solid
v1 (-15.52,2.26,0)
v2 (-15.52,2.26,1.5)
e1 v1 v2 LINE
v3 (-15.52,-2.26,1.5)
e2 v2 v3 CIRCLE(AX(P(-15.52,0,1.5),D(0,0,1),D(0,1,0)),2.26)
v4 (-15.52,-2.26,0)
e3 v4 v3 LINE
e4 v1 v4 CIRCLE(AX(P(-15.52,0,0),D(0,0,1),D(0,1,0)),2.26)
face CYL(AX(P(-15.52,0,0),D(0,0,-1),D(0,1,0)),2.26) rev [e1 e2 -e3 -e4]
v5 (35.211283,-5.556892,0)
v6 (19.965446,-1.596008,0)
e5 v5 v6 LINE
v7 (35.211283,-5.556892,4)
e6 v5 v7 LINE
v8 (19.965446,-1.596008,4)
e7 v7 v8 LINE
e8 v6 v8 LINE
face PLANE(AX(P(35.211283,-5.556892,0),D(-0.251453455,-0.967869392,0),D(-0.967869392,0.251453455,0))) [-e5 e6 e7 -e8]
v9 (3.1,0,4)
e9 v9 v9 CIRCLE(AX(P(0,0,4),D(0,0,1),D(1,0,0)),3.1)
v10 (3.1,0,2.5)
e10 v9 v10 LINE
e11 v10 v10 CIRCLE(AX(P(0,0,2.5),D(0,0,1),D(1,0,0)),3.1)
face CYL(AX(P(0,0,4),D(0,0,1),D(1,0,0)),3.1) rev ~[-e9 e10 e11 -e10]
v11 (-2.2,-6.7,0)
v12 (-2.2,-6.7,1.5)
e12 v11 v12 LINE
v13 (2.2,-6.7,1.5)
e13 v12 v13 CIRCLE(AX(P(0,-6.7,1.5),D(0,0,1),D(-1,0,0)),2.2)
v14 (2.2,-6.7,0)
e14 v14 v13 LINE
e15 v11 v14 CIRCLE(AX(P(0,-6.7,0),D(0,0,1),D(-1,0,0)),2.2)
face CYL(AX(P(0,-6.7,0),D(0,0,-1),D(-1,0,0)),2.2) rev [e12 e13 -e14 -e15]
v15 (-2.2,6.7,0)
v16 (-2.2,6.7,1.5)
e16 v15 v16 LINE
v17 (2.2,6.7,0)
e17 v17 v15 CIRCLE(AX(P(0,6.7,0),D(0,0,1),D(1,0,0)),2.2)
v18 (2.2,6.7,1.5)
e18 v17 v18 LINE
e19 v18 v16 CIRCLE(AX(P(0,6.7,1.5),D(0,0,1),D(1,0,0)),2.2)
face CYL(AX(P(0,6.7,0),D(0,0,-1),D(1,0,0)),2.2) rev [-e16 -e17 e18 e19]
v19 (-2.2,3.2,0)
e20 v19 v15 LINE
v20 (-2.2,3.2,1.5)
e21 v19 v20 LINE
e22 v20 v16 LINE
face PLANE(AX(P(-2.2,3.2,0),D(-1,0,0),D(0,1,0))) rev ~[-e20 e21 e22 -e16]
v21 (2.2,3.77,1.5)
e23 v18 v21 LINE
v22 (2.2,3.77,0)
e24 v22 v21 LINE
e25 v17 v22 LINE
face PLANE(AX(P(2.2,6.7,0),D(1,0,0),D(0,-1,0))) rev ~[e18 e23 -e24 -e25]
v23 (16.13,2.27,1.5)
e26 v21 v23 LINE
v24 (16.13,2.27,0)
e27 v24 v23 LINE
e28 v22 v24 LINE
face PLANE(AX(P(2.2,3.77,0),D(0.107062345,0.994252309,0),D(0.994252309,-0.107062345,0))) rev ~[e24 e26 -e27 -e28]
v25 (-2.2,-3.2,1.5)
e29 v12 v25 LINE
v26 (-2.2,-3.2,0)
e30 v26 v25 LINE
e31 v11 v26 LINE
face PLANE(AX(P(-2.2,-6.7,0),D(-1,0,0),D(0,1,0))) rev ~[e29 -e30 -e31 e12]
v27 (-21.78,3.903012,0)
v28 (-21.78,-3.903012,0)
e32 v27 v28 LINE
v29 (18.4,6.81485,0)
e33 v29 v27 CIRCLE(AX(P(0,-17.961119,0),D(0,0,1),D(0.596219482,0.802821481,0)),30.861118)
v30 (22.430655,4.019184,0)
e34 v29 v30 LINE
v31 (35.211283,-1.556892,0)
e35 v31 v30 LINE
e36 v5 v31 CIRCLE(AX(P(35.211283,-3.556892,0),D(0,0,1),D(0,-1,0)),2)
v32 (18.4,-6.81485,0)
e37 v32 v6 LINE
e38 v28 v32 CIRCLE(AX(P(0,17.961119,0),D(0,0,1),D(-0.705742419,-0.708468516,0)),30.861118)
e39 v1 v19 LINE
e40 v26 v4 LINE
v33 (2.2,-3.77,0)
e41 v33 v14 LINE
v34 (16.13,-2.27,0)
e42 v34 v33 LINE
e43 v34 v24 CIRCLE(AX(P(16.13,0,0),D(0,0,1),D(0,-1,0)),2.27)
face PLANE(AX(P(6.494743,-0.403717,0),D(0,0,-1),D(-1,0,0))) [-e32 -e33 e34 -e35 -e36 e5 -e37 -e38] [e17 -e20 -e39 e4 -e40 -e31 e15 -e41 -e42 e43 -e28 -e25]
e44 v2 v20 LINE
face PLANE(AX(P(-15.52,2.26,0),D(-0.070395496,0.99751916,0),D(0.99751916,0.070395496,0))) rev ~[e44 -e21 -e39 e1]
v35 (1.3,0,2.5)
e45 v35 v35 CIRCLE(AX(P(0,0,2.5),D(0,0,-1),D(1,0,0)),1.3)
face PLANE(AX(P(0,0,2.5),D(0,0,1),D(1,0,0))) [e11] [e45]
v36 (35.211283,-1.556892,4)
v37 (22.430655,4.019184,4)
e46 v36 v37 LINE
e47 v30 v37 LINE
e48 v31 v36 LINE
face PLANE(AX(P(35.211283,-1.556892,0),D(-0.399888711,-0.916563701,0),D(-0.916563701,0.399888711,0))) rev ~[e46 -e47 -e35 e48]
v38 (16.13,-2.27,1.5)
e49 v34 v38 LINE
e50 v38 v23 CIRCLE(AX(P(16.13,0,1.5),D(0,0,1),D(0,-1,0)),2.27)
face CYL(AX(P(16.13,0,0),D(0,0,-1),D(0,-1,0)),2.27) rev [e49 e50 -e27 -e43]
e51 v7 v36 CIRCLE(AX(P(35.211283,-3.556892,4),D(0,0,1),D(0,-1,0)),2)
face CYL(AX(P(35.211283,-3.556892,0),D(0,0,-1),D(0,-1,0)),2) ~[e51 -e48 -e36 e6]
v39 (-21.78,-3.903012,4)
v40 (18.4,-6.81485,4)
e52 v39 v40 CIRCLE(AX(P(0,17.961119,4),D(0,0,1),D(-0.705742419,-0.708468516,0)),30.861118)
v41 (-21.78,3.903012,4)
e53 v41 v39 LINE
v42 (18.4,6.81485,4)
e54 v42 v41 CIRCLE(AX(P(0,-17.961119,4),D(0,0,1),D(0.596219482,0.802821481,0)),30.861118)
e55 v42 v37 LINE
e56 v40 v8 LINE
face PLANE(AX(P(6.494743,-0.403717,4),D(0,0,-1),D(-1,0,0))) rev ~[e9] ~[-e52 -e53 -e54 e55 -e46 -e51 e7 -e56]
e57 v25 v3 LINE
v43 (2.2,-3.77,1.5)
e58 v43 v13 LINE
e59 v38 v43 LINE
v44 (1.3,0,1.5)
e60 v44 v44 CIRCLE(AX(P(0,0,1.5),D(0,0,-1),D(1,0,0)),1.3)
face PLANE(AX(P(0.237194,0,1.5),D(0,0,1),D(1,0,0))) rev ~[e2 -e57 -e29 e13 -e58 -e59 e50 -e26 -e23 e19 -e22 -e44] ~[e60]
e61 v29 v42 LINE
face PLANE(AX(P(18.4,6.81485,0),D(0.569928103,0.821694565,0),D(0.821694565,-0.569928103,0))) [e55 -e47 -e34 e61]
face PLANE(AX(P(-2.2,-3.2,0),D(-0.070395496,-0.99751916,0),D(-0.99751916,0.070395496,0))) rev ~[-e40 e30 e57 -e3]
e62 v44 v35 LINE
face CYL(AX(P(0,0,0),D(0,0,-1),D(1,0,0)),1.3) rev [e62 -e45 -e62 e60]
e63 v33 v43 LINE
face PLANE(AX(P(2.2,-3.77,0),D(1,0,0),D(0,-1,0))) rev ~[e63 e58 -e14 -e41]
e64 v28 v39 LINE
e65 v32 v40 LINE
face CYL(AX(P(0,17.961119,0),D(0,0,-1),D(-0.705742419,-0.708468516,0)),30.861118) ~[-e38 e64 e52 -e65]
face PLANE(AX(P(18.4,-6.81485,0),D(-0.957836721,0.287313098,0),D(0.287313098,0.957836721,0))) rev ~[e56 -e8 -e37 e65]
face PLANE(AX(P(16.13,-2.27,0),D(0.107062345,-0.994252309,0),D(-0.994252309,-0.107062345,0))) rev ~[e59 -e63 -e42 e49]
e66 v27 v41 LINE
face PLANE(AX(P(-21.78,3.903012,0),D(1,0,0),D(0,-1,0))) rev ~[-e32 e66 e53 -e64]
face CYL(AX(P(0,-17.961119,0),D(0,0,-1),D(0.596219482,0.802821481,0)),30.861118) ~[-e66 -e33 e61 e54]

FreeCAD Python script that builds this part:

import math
import FreeCAD as App
import Part
import Sketcher

V = App.Vector

doc = App.newDocument("Part")
params = doc.addObject("Spreadsheet::Sheet", "Params")
for row, (alias, value) in enumerate([
    ("sketch1_radius", "2 mm"),
    ("pad1_length", "4 mm"),
    ("sketch2_radius", "2.2 mm"),
    ("sketch2_radius2", "2.26 mm"),
    ("sketch2_radius3", "2.27 mm"),
    ("sketch2_height", "3.5 mm"),
    ("sketch2_height2", "2.93 mm"),
    ("pocket1_length", "1.5 mm"),
    ("sketch3_diameter", "6.2 mm"),
    ("pocket2_length", "1.5 mm"),
    ("sketch4_diameter", "2.6 mm"),
], start=1):
    params.set(f"A{row}", alias)
    params.set(f"B{row}", "=" + value)
    params.setAlias(f"B{row}", alias)

body = doc.addObject("PartDesign::Body", "Body")

sketch1 = body.newObject("Sketcher::SketchObject", "Sketch")
sketch1.AttachmentSupport = (doc.getObject("XY_Plane"), [""])
sketch1.MapMode = "FlatFace"
sketch1.addGeometry([
    Part.LineSegment(V(-21.78, 3.903012, 0), V(-21.78, -3.903012, 0)),
    Part.ArcOfCircle(Part.Circle(V(0, 17.961119, 0), V(0, 0, 1), 30.861118), math.radians(-134.889554), math.radians(-53.400385)),
    Part.LineSegment(V(18.4, -6.81485, 0), V(19.965446, -1.596008, 0)),
    Part.LineSegment(V(19.965446, -1.596008, 0), V(35.211283, -5.556892, 0)),
    Part.ArcOfCircle(Part.Circle(V(35.211283, -3.556892, 0), V(0, 0, 1), 2), math.radians(-90), math.radians(90)),
    Part.LineSegment(V(35.211283, -1.556892, 0), V(22.430655, 4.019184, 0)),
    Part.LineSegment(V(22.430655, 4.019184, 0), V(18.4, 6.81485, 0)),
    Part.ArcOfCircle(Part.Circle(V(0, -17.961119, 0), V(0, 0, 1), 30.861118), math.radians(53.400385), math.radians(134.889554)),
], False)
sketch1.addConstraint([
    Sketcher.Constraint("Coincident", 0, 2, 1, 1),
    Sketcher.Constraint("Coincident", 1, 2, 2, 1),
    Sketcher.Constraint("Coincident", 2, 2, 3, 1),
    Sketcher.Constraint("Coincident", 3, 2, 4, 1),
    Sketcher.Constraint("Coincident", 4, 2, 5, 1),
    Sketcher.Constraint("Coincident", 5, 2, 6, 1),
    Sketcher.Constraint("Coincident", 6, 2, 7, 1),
    Sketcher.Constraint("Coincident", 7, 2, 0, 1),
    Sketcher.Constraint("Vertical", 0),
    Sketcher.Constraint("Equal", 1, 7),
    Sketcher.Constraint("Symmetric", 1, 3, 7, 3, -1, 1),
    Sketcher.Constraint("Symmetric", 1, 2, 6, 2, -1),
    Sketcher.Constraint("Vertical", 4, 3, 3, 2),
    Sketcher.Constraint("Vertical", 3, 2, 4, 2),
    Sketcher.Constraint("Radius", 4, 2.0),
    Sketcher.Constraint("DistanceX", -1, 1, 1, 2, 18.4),
    Sketcher.Constraint("DistanceX", 0, 2, -1, 1, 21.78),
    Sketcher.Constraint("Radius", 1, 30.861118),
    Sketcher.Constraint("DistanceY", 1, 2, 6, 2, 13.6297),
    Sketcher.Constraint("Distance", 2, 5.448572),
    Sketcher.Constraint("Distance", 5, 13.94407),
    Sketcher.Constraint("DistanceY", 4, 3, -1, 1, 3.556892),
    Sketcher.Constraint("DistanceY", 2, 2, -1, 1, 1.596008),
    Sketcher.Constraint("DistanceX", 2, 2, 5, 2, 2.465209),
    Sketcher.Constraint("Distance", 3, 15.751957),
])
sketch1.setExpression("Constraints[14]", "Params.sketch1_radius")
pad1 = body.newObject("PartDesign::Pad", "Pad")
pad1.Profile = sketch1
pad1.setExpression("Length", "Params.pad1_length")

sketch2 = body.newObject("Sketcher::SketchObject", "Sketch001")
sketch2.AttachmentSupport = (doc.getObject("XY_Plane"), [""])
sketch2.MapMode = "FlatFace"
sketch2.addGeometry([
    Part.ArcOfCircle(Part.Circle(V(0, 6.7, 0), V(0, 0, 1), 2.2), math.radians(0), math.radians(180)),
    Part.LineSegment(V(-2.2, 6.7, 0), V(-2.2, 3.2, 0)),
    Part.LineSegment(V(-2.2, 3.2, 0), V(-15.52, 2.26, 0)),
    Part.ArcOfCircle(Part.Circle(V(-15.52, 0, 0), V(0, 0, 1), 2.26), math.radians(90), math.radians(270)),
    Part.LineSegment(V(-15.52, -2.26, 0), V(-2.2, -3.2, 0)),
    Part.LineSegment(V(-2.2, -3.2, 0), V(-2.2, -6.7, 0)),
    Part.ArcOfCircle(Part.Circle(V(0, -6.7, 0), V(0, 0, 1), 2.2), math.radians(180), math.radians(360)),
    Part.LineSegment(V(2.2, -6.7, 0), V(2.2, -3.77, 0)),
    Part.LineSegment(V(2.2, -3.77, 0), V(16.13, -2.27, 0)),
    Part.ArcOfCircle(Part.Circle(V(16.13, 0, 0), V(0, 0, 1), 2.27), math.radians(-90), math.radians(90)),
    Part.LineSegment(V(16.13, 2.27, 0), V(2.2, 3.77, 0)),
    Part.LineSegment(V(2.2, 3.77, 0), V(2.2, 6.7, 0)),
], False)
sketch2.addConstraint([
    Sketcher.Constraint("Tangent", 0, 2, 1, 1),
    Sketcher.Constraint("Coincident", 1, 2, 2, 1),
    Sketcher.Constraint("Coincident", 2, 2, 3, 1),
    Sketcher.Constraint("Coincident", 3, 2, 4, 1),
    Sketcher.Constraint("Coincident", 4, 2, 5, 1),
    Sketcher.Constraint("Tangent", 5, 2, 6, 1),
    Sketcher.Constraint("Tangent", 6, 2, 7, 1),
    Sketcher.Constraint("Coincident", 7, 2, 8, 1),
    Sketcher.Constraint("Coincident", 8, 2, 9, 1),
    Sketcher.Constraint("Coincident", 9, 2, 10, 1),
    Sketcher.Constraint("Coincident", 10, 2, 11, 1),
    Sketcher.Constraint("Tangent", 11, 2, 0, 1),
    Sketcher.Constraint("Vertical", 1),
    Sketcher.Constraint("Vertical", 5),
    Sketcher.Constraint("Vertical", 7),
    Sketcher.Constraint("Vertical", 11),
    Sketcher.Constraint("Equal", 0, 6),
    Sketcher.Constraint("Symmetric", 0, 3, 6, 3, -1, 1),
    Sketcher.Constraint("Symmetric", 2, 2, 3, 2, -1),
    Sketcher.Constraint("Symmetric", 1, 2, 4, 2, -1),
    Sketcher.Constraint("Symmetric", 8, 2, 9, 2, -1),
    Sketcher.Constraint("Vertical", 3, 3, 2, 2),
    Sketcher.Constraint("Vertical", 9, 3, 8, 2),
    Sketcher.Constraint("Equal", 7, 11),
    Sketcher.Constraint("Radius", 0, 2.2),
    Sketcher.Constraint("Radius", 3, 2.26),
    Sketcher.Constraint("Radius", 9, 2.27),
    Sketcher.Constraint("DistanceY", 1, 2, 1, 1, 3.5),
    Sketcher.Constraint("DistanceY", 7, 1, 7, 2, 2.93),
    Sketcher.Constraint("DistanceY", -1, 1, 0, 3, 6.7),
    Sketcher.Constraint("DistanceX", 3, 3, -1, 1, 15.52),
    Sketcher.Constraint("DistanceX", -1, 1, 9, 3, 16.13),
])
sketch2.setExpression("Constraints[24]", "Params.sketch2_radius")
sketch2.setExpression("Constraints[25]", "Params.sketch2_radius2")
sketch2.setExpression("Constraints[26]", "Params.sketch2_radius3")
sketch2.setExpression("Constraints[27]", "Params.sketch2_height")
sketch2.setExpression("Constraints[28]", "Params.sketch2_height2")
pocket1 = body.newObject("PartDesign::Pocket", "Pocket")
pocket1.Profile = sketch2
pocket1.setExpression("Length", "Params.pocket1_length")
pocket1.Reversed = True

sketch3 = body.newObject("Sketcher::SketchObject", "Sketch002")
sketch3.AttachmentSupport = (doc.getObject("XY_Plane"), [""])
sketch3.MapMode = "FlatFace"
sketch3.AttachmentOffset = App.Placement(V(0, 0, 4), App.Rotation())
sketch3.addGeometry(Part.Circle(V(0, 0, 0), V(0, 0, 1), 3.1), False)
sketch3.addConstraint([
    Sketcher.Constraint("Coincident", 0, 3, -1, 1),
    Sketcher.Constraint("Diameter", 0, 6.2),
])
sketch3.setExpression("Constraints[1]", "Params.sketch3_diameter")
pocket2 = body.newObject("PartDesign::Pocket", "Pocket001")
pocket2.Profile = sketch3
pocket2.setExpression("Length", "Params.pocket2_length")

sketch4 = body.newObject("Sketcher::SketchObject", "Sketch003")
sketch4.AttachmentSupport = (doc.getObject("XY_Plane"), [""])
sketch4.MapMode = "FlatFace"
sketch4.addGeometry(Part.Circle(V(0, 0, 0), V(0, 0, 1), 1.3), False)
sketch4.addConstraint([
    Sketcher.Constraint("Coincident", 0, 3, -1, 1),
    Sketcher.Constraint("Diameter", 0, 2.6),
])
sketch4.setExpression("Constraints[1]", "Params.sketch4_diameter")
pocket3 = body.newObject("PartDesign::Pocket", "Pocket002")
pocket3.Profile = sketch4
pocket3.Type = "ThroughAll"
pocket3.Reversed = True

doc.recompute()
